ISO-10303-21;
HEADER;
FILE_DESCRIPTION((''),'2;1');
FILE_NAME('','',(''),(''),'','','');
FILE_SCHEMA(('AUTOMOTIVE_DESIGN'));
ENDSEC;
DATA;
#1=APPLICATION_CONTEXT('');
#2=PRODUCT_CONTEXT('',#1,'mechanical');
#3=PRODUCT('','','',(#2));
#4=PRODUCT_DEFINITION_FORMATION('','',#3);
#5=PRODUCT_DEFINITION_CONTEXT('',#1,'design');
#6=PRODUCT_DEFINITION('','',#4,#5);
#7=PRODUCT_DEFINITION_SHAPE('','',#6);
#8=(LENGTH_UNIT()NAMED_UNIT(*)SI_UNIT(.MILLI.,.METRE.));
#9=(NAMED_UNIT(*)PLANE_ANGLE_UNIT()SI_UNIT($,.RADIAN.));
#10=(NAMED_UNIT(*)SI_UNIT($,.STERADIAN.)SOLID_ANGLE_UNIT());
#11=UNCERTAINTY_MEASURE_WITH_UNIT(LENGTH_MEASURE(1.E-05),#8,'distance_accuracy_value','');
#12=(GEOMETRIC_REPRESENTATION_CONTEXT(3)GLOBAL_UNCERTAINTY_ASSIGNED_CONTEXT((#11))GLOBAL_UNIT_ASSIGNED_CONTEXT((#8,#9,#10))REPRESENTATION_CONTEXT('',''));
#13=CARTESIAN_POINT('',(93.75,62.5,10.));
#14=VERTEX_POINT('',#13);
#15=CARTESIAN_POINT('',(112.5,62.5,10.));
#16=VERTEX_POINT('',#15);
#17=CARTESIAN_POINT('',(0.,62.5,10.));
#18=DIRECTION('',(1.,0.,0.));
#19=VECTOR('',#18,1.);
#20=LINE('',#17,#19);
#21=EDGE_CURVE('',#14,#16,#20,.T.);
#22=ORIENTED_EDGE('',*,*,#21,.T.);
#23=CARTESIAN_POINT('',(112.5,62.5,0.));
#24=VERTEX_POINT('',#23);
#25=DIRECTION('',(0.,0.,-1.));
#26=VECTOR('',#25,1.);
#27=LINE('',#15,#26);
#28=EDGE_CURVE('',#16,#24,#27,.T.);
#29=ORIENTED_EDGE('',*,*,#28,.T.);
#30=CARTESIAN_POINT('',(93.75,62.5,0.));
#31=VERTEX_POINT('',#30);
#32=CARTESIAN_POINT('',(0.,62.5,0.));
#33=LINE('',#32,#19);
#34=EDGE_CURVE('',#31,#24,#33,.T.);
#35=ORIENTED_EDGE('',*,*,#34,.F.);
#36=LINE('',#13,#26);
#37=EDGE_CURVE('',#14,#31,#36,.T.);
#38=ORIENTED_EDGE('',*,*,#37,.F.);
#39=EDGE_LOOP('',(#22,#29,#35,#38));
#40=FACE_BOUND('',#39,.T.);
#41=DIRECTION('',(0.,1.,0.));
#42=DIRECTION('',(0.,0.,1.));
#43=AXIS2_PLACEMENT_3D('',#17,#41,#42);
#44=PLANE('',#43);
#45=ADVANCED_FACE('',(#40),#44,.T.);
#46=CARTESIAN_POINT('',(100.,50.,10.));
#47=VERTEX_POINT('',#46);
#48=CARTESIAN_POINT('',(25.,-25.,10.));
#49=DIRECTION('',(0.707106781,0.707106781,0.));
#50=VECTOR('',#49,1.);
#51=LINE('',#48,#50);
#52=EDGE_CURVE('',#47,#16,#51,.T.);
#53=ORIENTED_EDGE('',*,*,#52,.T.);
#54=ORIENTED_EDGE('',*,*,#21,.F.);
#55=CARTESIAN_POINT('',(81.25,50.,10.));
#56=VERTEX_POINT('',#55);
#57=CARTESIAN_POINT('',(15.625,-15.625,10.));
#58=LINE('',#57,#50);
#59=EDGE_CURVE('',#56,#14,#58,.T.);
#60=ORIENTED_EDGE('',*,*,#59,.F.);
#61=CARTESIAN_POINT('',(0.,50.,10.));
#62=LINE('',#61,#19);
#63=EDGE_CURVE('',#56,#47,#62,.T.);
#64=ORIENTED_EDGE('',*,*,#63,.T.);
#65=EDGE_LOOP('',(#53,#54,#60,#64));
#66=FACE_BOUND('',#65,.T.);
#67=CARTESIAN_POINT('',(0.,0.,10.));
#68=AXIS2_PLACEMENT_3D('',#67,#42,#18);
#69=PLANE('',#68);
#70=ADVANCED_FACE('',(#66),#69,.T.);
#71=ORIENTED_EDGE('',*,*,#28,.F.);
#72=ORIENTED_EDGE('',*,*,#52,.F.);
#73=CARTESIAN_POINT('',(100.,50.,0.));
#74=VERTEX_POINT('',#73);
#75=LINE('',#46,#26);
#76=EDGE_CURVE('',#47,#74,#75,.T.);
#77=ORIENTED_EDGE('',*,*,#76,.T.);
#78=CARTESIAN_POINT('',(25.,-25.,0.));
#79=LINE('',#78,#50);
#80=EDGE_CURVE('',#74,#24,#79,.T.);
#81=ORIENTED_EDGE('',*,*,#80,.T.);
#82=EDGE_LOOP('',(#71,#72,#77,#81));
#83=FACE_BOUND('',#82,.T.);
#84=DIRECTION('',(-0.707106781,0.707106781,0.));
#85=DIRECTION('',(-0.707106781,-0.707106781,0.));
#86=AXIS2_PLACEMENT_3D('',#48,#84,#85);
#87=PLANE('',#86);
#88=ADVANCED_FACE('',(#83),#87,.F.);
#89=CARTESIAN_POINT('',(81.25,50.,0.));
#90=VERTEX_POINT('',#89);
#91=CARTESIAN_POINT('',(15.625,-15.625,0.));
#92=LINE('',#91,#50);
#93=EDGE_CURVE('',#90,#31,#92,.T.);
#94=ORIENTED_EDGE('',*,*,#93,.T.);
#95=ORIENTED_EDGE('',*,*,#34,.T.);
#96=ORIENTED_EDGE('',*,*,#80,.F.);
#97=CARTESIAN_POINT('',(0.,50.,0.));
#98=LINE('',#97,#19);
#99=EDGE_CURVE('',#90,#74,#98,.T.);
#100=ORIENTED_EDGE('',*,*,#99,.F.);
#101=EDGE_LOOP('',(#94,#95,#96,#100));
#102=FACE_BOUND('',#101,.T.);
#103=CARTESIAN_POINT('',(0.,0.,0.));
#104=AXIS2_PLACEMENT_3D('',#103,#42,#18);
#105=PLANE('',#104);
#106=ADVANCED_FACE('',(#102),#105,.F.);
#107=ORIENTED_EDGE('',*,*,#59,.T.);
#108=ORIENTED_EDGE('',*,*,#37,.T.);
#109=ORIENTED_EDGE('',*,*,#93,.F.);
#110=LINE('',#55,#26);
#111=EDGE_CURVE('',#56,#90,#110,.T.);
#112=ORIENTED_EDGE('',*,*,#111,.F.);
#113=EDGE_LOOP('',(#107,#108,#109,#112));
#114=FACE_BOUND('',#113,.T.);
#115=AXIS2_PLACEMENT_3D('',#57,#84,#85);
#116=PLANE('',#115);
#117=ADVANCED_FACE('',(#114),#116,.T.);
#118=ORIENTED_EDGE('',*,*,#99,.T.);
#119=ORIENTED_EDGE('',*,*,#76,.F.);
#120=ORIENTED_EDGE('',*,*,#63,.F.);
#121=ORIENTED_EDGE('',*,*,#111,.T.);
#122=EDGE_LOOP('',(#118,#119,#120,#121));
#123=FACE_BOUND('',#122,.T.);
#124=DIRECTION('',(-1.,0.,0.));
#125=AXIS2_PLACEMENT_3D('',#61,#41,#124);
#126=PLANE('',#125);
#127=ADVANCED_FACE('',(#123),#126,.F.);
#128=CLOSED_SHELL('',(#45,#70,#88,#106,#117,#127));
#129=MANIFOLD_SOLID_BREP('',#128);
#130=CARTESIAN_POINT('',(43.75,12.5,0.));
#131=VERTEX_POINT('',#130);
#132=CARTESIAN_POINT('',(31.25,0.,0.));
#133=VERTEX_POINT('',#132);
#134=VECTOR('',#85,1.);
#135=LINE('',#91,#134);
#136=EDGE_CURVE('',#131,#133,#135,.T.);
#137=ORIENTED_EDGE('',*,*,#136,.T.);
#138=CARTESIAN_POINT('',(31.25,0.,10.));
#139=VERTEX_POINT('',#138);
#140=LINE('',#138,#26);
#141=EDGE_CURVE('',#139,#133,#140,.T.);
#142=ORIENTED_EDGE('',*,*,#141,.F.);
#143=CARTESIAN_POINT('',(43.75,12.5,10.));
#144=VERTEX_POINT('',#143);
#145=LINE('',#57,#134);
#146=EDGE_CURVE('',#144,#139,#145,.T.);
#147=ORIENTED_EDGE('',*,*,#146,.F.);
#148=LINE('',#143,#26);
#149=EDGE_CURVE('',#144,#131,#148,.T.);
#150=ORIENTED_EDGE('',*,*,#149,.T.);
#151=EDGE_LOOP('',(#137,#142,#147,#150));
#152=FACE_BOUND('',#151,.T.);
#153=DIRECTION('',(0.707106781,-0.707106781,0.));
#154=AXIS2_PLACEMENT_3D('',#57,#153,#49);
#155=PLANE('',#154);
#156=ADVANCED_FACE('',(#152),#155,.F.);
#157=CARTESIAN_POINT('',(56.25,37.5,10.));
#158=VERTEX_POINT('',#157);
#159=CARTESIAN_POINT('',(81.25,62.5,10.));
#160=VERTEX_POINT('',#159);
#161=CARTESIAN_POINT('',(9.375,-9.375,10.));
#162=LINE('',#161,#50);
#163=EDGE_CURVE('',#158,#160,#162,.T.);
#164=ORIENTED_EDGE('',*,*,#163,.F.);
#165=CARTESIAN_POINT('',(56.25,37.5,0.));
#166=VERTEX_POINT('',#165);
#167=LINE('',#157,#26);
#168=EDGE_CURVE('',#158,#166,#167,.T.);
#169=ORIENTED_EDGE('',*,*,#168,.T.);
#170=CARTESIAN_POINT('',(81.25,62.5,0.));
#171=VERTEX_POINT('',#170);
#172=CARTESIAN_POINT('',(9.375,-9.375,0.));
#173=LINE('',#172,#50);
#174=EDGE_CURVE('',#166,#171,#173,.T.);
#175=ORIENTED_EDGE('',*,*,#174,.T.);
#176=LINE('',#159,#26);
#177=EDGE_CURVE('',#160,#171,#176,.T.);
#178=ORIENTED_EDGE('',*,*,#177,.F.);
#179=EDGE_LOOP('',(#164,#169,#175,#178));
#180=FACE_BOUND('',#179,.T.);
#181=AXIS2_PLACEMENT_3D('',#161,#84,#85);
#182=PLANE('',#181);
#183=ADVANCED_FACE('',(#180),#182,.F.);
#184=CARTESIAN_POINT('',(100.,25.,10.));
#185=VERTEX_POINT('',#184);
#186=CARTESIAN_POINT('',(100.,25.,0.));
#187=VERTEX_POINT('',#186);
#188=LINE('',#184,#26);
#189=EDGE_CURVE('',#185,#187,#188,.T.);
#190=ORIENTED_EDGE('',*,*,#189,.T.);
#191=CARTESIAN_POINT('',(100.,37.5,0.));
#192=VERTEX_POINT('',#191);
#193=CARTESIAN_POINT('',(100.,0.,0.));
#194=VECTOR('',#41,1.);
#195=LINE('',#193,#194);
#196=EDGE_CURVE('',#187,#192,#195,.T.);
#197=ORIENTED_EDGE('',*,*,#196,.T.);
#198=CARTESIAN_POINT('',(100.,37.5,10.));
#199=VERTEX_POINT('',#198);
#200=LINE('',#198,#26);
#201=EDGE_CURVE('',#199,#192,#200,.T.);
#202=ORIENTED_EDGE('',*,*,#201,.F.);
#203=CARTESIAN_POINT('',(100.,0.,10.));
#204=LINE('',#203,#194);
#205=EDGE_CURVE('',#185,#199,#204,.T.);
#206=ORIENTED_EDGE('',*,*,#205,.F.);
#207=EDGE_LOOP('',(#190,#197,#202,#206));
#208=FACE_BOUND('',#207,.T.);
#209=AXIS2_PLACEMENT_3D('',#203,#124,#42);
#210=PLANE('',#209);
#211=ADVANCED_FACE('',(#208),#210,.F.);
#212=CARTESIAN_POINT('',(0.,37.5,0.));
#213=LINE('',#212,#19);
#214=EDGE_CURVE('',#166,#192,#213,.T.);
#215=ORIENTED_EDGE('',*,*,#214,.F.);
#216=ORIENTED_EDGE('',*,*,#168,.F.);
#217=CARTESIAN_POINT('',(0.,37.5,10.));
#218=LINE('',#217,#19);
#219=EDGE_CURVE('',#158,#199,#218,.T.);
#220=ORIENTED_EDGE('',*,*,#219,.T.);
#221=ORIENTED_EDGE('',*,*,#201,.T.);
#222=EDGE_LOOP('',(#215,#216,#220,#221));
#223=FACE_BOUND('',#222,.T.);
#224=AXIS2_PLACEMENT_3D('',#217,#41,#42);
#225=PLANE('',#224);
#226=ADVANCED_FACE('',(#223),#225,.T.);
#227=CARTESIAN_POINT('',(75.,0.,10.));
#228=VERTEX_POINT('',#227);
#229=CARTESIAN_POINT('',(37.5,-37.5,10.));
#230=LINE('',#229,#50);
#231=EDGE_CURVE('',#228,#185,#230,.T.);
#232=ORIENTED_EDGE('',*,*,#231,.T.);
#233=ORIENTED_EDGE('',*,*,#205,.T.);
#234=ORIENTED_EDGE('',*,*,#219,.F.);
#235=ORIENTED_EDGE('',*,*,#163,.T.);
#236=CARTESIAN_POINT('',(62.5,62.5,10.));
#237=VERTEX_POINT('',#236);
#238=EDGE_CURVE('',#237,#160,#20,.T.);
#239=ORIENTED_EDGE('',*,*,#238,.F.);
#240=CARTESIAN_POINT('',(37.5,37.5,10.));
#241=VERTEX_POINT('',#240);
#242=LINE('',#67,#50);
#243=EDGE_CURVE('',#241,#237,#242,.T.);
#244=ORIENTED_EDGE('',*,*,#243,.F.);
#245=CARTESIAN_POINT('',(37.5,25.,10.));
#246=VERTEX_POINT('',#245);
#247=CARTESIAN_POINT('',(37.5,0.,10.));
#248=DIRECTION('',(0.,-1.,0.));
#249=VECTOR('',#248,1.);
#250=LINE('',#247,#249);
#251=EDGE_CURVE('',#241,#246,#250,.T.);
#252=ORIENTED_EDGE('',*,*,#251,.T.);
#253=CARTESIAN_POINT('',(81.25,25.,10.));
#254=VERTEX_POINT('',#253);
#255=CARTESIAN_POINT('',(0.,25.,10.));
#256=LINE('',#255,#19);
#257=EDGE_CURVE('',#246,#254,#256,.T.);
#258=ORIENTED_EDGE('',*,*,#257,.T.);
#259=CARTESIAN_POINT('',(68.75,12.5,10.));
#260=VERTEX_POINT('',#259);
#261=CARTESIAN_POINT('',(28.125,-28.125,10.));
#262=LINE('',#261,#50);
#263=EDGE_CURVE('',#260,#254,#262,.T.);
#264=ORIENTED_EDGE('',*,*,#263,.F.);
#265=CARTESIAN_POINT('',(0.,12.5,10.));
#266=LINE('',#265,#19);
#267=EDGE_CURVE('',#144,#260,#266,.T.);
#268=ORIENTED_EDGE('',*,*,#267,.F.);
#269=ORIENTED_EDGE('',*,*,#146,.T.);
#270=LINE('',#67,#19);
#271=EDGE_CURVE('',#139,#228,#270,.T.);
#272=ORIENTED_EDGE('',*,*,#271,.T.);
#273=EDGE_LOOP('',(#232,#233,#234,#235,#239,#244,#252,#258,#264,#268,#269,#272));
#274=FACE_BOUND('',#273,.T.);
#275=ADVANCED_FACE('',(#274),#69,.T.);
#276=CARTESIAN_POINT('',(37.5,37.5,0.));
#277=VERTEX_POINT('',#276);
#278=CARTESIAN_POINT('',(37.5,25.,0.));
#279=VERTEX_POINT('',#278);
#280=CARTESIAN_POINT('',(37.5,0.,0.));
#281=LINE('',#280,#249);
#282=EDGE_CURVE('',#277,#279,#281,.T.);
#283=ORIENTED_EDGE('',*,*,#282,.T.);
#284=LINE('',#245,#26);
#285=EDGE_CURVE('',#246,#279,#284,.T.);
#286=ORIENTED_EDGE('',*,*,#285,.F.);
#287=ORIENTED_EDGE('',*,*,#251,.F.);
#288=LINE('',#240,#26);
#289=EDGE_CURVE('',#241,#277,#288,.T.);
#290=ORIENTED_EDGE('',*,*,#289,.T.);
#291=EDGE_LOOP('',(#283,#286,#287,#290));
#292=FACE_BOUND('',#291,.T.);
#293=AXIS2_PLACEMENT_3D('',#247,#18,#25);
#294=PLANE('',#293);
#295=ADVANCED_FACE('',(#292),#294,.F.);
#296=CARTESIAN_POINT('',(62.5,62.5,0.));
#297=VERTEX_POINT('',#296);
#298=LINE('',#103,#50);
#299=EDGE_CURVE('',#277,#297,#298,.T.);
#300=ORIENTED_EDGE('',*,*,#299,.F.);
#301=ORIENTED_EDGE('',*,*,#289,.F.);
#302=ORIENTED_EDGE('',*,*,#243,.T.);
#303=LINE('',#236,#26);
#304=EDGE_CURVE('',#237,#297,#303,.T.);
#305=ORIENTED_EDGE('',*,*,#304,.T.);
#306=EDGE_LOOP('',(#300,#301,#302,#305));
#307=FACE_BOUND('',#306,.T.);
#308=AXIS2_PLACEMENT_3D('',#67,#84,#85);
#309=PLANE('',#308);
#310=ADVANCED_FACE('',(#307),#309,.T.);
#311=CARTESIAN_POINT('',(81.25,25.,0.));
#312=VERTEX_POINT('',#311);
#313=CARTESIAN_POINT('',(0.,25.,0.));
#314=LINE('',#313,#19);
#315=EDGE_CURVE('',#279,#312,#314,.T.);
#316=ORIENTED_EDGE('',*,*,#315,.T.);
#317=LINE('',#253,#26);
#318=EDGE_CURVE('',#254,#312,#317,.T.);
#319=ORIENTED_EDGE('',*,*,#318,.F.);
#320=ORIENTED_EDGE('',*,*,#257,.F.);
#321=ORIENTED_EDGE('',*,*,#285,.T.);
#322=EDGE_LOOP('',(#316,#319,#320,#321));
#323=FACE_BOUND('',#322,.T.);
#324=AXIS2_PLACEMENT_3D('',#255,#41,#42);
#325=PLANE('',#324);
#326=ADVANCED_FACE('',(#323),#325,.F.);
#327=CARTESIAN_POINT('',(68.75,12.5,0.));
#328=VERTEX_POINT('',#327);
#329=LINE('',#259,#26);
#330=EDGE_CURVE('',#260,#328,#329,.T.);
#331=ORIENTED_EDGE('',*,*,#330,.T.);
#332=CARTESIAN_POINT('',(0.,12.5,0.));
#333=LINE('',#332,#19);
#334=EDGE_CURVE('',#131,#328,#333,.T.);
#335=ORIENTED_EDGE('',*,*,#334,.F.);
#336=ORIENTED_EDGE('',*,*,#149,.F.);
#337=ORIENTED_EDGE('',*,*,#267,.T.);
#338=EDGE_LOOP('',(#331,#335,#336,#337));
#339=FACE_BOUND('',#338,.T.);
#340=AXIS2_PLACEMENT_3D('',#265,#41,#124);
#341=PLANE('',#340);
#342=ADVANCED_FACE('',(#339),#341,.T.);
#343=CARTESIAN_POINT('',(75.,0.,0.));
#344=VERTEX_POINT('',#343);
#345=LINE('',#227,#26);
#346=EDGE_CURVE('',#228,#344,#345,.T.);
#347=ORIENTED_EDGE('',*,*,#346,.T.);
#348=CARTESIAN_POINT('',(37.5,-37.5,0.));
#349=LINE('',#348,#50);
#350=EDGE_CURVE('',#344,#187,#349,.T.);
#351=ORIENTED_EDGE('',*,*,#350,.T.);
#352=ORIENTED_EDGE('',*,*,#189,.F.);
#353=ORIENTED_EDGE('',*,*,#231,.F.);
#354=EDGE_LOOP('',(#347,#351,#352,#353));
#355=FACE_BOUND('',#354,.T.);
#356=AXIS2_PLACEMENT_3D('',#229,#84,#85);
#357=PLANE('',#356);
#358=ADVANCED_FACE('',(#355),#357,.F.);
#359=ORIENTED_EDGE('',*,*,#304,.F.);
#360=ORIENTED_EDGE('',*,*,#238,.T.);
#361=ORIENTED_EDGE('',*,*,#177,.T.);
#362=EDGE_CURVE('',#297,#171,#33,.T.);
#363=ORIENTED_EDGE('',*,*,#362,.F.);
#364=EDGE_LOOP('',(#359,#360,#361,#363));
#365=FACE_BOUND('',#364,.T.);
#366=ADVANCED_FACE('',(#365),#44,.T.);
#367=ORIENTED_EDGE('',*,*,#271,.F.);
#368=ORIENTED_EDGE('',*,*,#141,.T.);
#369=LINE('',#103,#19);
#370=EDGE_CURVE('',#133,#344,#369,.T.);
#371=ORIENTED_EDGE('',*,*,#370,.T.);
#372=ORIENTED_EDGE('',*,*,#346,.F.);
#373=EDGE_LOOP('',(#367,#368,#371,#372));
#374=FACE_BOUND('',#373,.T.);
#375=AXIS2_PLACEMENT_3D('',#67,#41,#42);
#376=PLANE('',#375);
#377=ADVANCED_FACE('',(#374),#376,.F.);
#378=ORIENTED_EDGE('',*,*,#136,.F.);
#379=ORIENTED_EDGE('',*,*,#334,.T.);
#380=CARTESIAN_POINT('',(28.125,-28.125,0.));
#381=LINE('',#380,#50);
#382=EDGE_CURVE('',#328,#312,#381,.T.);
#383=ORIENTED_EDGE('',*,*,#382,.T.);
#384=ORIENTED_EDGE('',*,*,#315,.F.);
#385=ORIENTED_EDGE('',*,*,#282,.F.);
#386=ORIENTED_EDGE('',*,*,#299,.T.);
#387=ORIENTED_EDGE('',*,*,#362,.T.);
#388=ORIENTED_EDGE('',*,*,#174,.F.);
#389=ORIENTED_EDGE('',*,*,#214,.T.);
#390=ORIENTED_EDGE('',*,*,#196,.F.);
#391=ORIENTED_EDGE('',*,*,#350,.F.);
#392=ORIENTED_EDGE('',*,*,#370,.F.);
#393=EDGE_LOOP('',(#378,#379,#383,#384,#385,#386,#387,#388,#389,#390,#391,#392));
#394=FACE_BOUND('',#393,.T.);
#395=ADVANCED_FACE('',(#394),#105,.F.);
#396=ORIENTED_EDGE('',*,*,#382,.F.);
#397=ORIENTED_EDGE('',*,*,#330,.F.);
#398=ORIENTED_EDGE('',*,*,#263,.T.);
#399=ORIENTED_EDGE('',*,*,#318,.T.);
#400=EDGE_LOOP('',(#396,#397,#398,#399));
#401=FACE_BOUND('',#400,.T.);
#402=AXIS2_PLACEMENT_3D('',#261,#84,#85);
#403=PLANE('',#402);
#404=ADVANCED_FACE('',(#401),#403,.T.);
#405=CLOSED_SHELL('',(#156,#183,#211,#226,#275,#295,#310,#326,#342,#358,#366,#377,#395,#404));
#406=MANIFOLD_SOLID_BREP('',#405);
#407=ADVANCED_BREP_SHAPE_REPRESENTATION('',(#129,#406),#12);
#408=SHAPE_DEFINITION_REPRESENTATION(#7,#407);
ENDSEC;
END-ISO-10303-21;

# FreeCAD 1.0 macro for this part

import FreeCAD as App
import Part
import Sketcher
Q = App.Units.Quantity


def add_polygon(sketch, points):
    """Adds a closed chain of lines whose ends are joined by coincident constraints."""
    first, n = sketch.GeometryCount, len(points)
    for a, b in zip(points, points[1:] + points[:1]):
        sketch.addGeometry(Part.LineSegment(App.Vector(*a, 0), App.Vector(*b, 0)), False)
    for i in range(n):
        sketch.addConstraint(Sketcher.Constraint("Coincident", first + i, 2, first + (i + 1) % n, 1))

doc = App.newDocument("Part")
body = doc.addObject("PartDesign::Body", "Body")
body.AllowCompound = True

# Sketch on XY plane
sketch1 = body.newObject("Sketcher::SketchObject", "Sketch")
sketch1.AttachmentSupport = (doc.getObject("XY_Plane"), [""])
sketch1.MapMode = "FlatFace"
add_polygon(sketch1, [(100, 50), (112, 62), (94, 62), (81, 50)])  # lines 0-3
add_polygon(sketch1, [(62, 62), (38, 38), (38, 25), (81, 25), (69, 12), (44, 12), (31, 0), (75, 0), (100, 25), (100, 38), (56, 38), (81, 62)])  # lines 4-15
sketch1.addConstraint([
    Sketcher.Constraint("Horizontal", 1),
    Sketcher.Constraint("Horizontal", 3),
    Sketcher.Constraint("Vertical", 5),
    Sketcher.Constraint("Horizontal", 6),
    Sketcher.Constraint("Horizontal", 8),
    Sketcher.Constraint("Horizontal", 10),
    Sketcher.Constraint("Vertical", 12),
    Sketcher.Constraint("Horizontal", 13),
    Sketcher.Constraint("Horizontal", 15),
    Sketcher.Constraint("PointOnObject", 9, 2, -1),
    Sketcher.Constraint("Parallel", 0, 2),
    Sketcher.Constraint("Parallel", 2, 4),
    Sketcher.Constraint("Parallel", 4, 7),
    Sketcher.Constraint("Parallel", 7, 9),
    Sketcher.Constraint("Parallel", 9, 11),
    Sketcher.Constraint("Parallel", 11, 14),
    Sketcher.Constraint("Horizontal", 6, 2, 11, 2),
    Sketcher.Constraint("Horizontal", 4, 2, 12, 2),
    Sketcher.Constraint("Horizontal", 1, 2, 14, 2),
    Sketcher.Constraint("Vertical", 2, 2, 6, 2),
    Sketcher.Constraint("Vertical", 3, 2, 11, 2),
    Sketcher.Constraint("Vertical", 6, 2, 14, 2),
    Sketcher.Constraint("Equal", 6, 10),
    Sketcher.Constraint("Equal", 10, 13),
    Sketcher.Constraint("Equal", 2, 7),
    Sketcher.Constraint("Equal", 7, 9),
    Sketcher.Constraint("Equal", 4, 11),
    Sketcher.Constraint("DistanceX", 8, 2, 8, 1, Q("25 mm")),
    Sketcher.Constraint("Angle", 0, Q("45 deg")),
    Sketcher.Constraint("DistanceY", 5, 2, 5, 1, Q("12.5 mm")),
    Sketcher.Constraint("DistanceX", -1, 1, 3, 2, Q("100 mm")),
    Sketcher.Constraint("DistanceX", 4, 2, 0, 2, Q("75 mm")),
])
pad1 = body.newObject("PartDesign::Pad", "Pad")
pad1.Profile = sketch1
pad1.Length = 10

doc.recompute()
